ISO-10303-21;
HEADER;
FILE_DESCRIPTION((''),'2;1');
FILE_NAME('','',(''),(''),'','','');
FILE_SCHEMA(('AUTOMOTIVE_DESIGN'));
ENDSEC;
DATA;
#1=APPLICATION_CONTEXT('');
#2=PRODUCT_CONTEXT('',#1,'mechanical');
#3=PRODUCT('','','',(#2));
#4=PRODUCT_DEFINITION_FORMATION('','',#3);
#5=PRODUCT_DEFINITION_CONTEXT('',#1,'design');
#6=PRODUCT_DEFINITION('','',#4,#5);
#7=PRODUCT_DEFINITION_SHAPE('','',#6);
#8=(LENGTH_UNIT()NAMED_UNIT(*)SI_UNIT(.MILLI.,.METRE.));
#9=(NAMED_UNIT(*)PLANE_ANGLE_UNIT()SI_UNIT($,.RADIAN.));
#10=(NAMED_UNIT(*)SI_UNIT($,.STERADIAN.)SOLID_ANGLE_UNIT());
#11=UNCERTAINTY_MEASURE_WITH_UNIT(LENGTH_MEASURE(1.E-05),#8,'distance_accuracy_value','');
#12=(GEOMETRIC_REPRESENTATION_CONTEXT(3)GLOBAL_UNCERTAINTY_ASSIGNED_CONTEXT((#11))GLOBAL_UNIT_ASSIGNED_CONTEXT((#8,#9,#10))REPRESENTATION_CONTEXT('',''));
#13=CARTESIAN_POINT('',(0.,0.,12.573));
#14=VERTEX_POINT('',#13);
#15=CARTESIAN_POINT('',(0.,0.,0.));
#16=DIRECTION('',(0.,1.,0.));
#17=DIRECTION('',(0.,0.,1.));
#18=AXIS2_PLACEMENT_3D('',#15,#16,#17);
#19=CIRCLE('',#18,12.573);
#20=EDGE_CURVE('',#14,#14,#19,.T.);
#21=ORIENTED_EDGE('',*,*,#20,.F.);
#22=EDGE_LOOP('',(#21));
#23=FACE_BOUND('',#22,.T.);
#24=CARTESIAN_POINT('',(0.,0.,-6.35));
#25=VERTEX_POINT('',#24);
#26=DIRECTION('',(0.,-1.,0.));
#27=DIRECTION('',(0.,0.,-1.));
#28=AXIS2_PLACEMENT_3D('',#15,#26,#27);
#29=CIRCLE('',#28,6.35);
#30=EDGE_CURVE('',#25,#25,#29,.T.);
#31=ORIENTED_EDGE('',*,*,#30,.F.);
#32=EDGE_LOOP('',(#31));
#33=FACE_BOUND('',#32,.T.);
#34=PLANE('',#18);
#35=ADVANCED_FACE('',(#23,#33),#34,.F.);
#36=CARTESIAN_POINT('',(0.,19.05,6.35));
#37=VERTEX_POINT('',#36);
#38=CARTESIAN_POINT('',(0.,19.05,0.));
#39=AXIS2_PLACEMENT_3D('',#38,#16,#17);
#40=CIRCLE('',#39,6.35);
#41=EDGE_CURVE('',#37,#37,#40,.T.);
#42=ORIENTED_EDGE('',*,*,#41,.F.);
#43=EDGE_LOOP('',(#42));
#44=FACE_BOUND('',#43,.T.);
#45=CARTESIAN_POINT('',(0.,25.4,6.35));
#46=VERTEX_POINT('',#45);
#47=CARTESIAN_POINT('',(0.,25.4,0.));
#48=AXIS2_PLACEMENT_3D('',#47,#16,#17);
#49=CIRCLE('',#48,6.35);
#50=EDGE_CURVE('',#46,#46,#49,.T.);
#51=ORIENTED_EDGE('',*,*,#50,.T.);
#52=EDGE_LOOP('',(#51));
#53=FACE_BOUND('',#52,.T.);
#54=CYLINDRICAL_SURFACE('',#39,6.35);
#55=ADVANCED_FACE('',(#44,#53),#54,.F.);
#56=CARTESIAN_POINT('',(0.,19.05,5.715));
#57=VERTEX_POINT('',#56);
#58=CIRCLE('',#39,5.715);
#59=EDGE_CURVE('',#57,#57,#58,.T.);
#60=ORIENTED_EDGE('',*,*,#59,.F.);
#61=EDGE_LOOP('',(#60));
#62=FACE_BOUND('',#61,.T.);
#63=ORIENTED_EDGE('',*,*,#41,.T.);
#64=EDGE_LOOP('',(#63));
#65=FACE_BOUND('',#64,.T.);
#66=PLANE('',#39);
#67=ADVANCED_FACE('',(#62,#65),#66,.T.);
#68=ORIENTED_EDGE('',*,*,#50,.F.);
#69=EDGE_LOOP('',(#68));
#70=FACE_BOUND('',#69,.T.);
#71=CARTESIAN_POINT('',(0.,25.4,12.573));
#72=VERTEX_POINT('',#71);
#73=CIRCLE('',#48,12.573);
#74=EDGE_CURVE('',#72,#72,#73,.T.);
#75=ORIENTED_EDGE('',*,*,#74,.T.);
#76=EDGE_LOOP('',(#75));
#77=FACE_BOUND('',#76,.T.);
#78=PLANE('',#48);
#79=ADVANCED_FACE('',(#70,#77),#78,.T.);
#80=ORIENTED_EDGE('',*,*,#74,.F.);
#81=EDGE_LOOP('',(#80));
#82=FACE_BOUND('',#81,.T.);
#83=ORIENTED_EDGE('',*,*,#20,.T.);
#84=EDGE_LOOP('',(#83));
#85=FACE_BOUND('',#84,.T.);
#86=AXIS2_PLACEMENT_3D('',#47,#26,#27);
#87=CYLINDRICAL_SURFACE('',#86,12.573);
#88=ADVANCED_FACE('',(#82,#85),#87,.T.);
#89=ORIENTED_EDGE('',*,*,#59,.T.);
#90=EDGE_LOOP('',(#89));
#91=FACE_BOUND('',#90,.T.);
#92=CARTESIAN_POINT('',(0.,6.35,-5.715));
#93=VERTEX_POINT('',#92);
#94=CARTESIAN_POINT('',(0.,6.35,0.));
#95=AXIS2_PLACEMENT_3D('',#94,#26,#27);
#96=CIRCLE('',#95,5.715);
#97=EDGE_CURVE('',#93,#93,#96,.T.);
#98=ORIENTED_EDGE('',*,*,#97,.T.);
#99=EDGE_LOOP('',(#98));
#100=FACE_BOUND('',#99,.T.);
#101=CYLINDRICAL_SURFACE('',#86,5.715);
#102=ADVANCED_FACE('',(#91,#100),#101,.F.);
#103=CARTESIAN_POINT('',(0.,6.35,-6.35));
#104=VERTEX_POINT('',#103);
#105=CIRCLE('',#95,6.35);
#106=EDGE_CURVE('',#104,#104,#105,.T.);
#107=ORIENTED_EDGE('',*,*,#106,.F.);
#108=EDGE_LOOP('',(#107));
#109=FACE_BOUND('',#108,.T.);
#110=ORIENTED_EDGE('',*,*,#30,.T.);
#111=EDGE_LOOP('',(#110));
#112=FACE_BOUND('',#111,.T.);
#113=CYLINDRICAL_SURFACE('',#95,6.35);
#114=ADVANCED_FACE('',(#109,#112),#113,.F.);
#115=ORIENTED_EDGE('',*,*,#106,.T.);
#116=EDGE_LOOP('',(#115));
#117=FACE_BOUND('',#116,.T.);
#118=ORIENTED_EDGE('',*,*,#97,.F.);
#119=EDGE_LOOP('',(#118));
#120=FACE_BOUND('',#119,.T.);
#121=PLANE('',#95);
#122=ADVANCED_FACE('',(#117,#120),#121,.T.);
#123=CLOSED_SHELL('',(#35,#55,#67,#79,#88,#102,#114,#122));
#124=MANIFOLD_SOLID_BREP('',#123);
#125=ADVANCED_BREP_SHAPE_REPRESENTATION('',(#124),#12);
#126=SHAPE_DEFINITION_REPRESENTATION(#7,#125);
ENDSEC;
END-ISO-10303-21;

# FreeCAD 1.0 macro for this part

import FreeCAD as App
import Part
import Sketcher

V = App.Vector
Q = App.Units.Quantity

doc = App.newDocument("Part")
params = doc.addObject("Spreadsheet::Sheet", "Params")
for row, (alias, value) in enumerate([
    ("sketch1_diameter", "0.99 in"),
    ("sketch1_diameter2", "0.45 in"),
    ("pad1_length", "1 in"),
    ("sketch2_diameter", "0.5 in"),
    ("sketch2_diameter2", "0.45 in"),
    ("pocket1_length", "0.25 in"),
    ("sketch3_diameter", "0.5 in"),
    ("sketch3_diameter2", "0.45 in"),
    ("pocket2_length", "0.25 in"),
], start=1):
    params.set(f"A{row}", alias)
    params.set(f"B{row}", "=" + value)
    params.setAlias(f"B{row}", alias)

body = doc.addObject("PartDesign::Body", "Body")

sketch1 = doc.addObject("Sketcher::SketchObject", "Sketch")
body.addObject(sketch1)
sketch1.AttachmentSupport = (doc.XZ_Plane, [""])
sketch1.MapMode = "FlatFace"
sketch1.addGeometry([
    Part.Circle(V(0, 0, 0), V(0, 0, 1), 13),
    Part.Circle(V(0, 0, 0), V(0, 0, 1), 6),
], False)
sketch1.addConstraint([
    Sketcher.Constraint("Coincident", 0, 3, -1, 1),
    Sketcher.Constraint("Coincident", 1, 3, -1, 1),
    Sketcher.Constraint("Diameter", 0, Q("0.99 in")),
    Sketcher.Constraint("Diameter", 1, Q("0.45 in")),
])
sketch1.setExpression("Constraints[2]", "Params.sketch1_diameter")
sketch1.setExpression("Constraints[3]", "Params.sketch1_diameter2")
pad1 = doc.addObject("PartDesign::Pad", "Pad")
body.addObject(pad1)
pad1.Profile = sketch1
pad1.setExpression("Length", "Params.pad1_length")
pad1.Reversed = True

sketch2 = doc.addObject("Sketcher::SketchObject", "Sketch001")
body.addObject(sketch2)
sketch2.AttachmentSupport = (doc.XZ_Plane, [""])
sketch2.MapMode = "FlatFace"
sketch2.AttachmentOffset = App.Placement(V(0, 0, -0.75 * 25.4), App.Rotation())
sketch2.addGeometry([
    Part.Circle(V(0, 0, 0), V(0, 0, 1), 6),
    Part.Circle(V(0, 0, 0), V(0, 0, 1), 6),
], False)
sketch2.addConstraint([
    Sketcher.Constraint("Coincident", 0, 3, -1, 1),
    Sketcher.Constraint("Coincident", 1, 3, -1, 1),
    Sketcher.Constraint("Diameter", 0, Q("0.5 in")),
    Sketcher.Constraint("Diameter", 1, Q("0.45 in")),
])
sketch2.setExpression("Constraints[2]", "Params.sketch2_diameter")
sketch2.setExpression("Constraints[3]", "Params.sketch2_diameter2")
pocket1 = doc.addObject("PartDesign::Pocket", "Pocket")
body.addObject(pocket1)
pocket1.Profile = sketch2
pocket1.setExpression("Length", "Params.pocket1_length")

sketch3 = doc.addObject("Sketcher::SketchObject", "Sketch002")
body.addObject(sketch3)
sketch3.AttachmentSupport = (doc.XZ_Plane, [""])
sketch3.MapMode = "FlatFace"
sketch3.addGeometry([
    Part.Circle(V(0, 0, 0), V(0, 0, 1), 6),
    Part.Circle(V(0, 0, 0), V(0, 0, 1), 6),
], False)
sketch3.addConstraint([
    Sketcher.Constraint("Coincident", 0, 3, -1, 1),
    Sketcher.Constraint("Coincident", 1, 3, -1, 1),
    Sketcher.Constraint("Diameter", 0, Q("0.5 in")),
    Sketcher.Constraint("Diameter", 1, Q("0.45 in")),
])
sketch3.setExpression("Constraints[2]", "Params.sketch3_diameter")
sketch3.setExpression("Constraints[3]", "Params.sketch3_diameter2")
pocket2 = doc.addObject("PartDesign::Pocket", "Pocket001")
body.addObject(pocket2)
pocket2.Profile = sketch3
pocket2.setExpression("Length", "Params.pocket2_length")

doc.recompute()
